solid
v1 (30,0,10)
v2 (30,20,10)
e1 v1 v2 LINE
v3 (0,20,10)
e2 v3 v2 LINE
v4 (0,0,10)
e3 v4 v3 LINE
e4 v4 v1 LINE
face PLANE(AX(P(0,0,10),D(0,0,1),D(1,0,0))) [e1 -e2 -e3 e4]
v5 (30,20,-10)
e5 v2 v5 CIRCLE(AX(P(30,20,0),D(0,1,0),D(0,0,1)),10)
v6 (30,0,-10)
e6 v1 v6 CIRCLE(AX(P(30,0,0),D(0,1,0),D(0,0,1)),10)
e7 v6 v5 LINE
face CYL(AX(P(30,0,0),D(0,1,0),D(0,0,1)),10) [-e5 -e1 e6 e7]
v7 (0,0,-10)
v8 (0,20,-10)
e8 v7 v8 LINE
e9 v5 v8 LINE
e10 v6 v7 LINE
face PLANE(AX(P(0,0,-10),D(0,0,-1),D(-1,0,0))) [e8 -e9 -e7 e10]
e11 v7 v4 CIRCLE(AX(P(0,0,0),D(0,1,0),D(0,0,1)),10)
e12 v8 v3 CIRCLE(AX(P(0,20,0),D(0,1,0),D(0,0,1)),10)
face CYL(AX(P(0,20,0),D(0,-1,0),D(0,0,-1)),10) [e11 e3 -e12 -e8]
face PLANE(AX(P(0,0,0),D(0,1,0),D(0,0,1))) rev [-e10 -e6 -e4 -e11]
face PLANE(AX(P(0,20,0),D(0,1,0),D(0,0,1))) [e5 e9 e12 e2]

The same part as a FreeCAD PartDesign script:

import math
import FreeCAD as App
import Part
import Sketcher

doc = App.newDocument("Part")
body = doc.addObject("PartDesign::Body", "Body")

# Sketch on XZ plane
sketch1 = doc.addObject("Sketcher::SketchObject", "Sketch")
body.addObject(sketch1)
sketch1.AttachmentSupport = (doc.XZ_Plane, [""])
sketch1.MapMode = "FlatFace"
sketch1.addGeometry(Part.Circle(App.Vector(0, 0, 0), App.Vector(0, 0, 1), 10), False)
sketch1.addConstraint([
    Sketcher.Constraint("Coincident", 0, 3, -1, 1),
    Sketcher.Constraint("Diameter", 0, 20.0),
])
pad1 = doc.addObject("PartDesign::Pad", "Pad")
body.addObject(pad1)
pad1.Profile = sketch1
pad1.Length = 20
pad1.Reversed = True

# Sketch on XZ plane
sketch2 = doc.addObject("Sketcher::SketchObject", "Sketch001")
body.addObject(sketch2)
sketch2.AttachmentSupport = (doc.XZ_Plane, [""])
sketch2.MapMode = "FlatFace"
sketch2.AttachmentOffset = App.Placement(App.Vector(0, 0, -20), App.Rotation())
sketch2.addGeometry([
    Part.LineSegment(App.Vector(30, -10, 0), App.Vector(0, -10, 0)),
    Part.LineSegment(App.Vector(0, -10, 0), App.Vector(0, 10, 0)),
    Part.LineSegment(App.Vector(0, 10, 0), App.Vector(30, 10, 0)),
    Part.ArcOfCircle(Part.Circle(App.Vector(30, 0, 0), App.Vector(0, 0, 1), 10), math.radians(-90), math.radians(90)),
], False)
sketch2.addConstraint([
    Sketcher.Constraint("Coincident", 0, 2, 1, 1),
    Sketcher.Constraint("Coincident", 1, 2, 2, 1),
    Sketcher.Constraint("Tangent", 2, 2, 3, 2),
    Sketcher.Constraint("Tangent", 3, 1, 0, 1),
    Sketcher.Constraint("Horizontal", 0),
    Sketcher.Constraint("Vertical", 1),
    Sketcher.Constraint("Horizontal", 2),
    Sketcher.Constraint("Symmetric", 0, 2, 1, 2, -1, 1),
    Sketcher.Constraint("Radius", 3, 10.0),
    Sketcher.Constraint("DistanceX", 0, 2, 0, 1, 30.0),
])
pad2 = doc.addObject("PartDesign::Pad", "Pad001")
body.addObject(pad2)
pad2.Profile = sketch2
pad2.Length = 20

doc.recompute()
